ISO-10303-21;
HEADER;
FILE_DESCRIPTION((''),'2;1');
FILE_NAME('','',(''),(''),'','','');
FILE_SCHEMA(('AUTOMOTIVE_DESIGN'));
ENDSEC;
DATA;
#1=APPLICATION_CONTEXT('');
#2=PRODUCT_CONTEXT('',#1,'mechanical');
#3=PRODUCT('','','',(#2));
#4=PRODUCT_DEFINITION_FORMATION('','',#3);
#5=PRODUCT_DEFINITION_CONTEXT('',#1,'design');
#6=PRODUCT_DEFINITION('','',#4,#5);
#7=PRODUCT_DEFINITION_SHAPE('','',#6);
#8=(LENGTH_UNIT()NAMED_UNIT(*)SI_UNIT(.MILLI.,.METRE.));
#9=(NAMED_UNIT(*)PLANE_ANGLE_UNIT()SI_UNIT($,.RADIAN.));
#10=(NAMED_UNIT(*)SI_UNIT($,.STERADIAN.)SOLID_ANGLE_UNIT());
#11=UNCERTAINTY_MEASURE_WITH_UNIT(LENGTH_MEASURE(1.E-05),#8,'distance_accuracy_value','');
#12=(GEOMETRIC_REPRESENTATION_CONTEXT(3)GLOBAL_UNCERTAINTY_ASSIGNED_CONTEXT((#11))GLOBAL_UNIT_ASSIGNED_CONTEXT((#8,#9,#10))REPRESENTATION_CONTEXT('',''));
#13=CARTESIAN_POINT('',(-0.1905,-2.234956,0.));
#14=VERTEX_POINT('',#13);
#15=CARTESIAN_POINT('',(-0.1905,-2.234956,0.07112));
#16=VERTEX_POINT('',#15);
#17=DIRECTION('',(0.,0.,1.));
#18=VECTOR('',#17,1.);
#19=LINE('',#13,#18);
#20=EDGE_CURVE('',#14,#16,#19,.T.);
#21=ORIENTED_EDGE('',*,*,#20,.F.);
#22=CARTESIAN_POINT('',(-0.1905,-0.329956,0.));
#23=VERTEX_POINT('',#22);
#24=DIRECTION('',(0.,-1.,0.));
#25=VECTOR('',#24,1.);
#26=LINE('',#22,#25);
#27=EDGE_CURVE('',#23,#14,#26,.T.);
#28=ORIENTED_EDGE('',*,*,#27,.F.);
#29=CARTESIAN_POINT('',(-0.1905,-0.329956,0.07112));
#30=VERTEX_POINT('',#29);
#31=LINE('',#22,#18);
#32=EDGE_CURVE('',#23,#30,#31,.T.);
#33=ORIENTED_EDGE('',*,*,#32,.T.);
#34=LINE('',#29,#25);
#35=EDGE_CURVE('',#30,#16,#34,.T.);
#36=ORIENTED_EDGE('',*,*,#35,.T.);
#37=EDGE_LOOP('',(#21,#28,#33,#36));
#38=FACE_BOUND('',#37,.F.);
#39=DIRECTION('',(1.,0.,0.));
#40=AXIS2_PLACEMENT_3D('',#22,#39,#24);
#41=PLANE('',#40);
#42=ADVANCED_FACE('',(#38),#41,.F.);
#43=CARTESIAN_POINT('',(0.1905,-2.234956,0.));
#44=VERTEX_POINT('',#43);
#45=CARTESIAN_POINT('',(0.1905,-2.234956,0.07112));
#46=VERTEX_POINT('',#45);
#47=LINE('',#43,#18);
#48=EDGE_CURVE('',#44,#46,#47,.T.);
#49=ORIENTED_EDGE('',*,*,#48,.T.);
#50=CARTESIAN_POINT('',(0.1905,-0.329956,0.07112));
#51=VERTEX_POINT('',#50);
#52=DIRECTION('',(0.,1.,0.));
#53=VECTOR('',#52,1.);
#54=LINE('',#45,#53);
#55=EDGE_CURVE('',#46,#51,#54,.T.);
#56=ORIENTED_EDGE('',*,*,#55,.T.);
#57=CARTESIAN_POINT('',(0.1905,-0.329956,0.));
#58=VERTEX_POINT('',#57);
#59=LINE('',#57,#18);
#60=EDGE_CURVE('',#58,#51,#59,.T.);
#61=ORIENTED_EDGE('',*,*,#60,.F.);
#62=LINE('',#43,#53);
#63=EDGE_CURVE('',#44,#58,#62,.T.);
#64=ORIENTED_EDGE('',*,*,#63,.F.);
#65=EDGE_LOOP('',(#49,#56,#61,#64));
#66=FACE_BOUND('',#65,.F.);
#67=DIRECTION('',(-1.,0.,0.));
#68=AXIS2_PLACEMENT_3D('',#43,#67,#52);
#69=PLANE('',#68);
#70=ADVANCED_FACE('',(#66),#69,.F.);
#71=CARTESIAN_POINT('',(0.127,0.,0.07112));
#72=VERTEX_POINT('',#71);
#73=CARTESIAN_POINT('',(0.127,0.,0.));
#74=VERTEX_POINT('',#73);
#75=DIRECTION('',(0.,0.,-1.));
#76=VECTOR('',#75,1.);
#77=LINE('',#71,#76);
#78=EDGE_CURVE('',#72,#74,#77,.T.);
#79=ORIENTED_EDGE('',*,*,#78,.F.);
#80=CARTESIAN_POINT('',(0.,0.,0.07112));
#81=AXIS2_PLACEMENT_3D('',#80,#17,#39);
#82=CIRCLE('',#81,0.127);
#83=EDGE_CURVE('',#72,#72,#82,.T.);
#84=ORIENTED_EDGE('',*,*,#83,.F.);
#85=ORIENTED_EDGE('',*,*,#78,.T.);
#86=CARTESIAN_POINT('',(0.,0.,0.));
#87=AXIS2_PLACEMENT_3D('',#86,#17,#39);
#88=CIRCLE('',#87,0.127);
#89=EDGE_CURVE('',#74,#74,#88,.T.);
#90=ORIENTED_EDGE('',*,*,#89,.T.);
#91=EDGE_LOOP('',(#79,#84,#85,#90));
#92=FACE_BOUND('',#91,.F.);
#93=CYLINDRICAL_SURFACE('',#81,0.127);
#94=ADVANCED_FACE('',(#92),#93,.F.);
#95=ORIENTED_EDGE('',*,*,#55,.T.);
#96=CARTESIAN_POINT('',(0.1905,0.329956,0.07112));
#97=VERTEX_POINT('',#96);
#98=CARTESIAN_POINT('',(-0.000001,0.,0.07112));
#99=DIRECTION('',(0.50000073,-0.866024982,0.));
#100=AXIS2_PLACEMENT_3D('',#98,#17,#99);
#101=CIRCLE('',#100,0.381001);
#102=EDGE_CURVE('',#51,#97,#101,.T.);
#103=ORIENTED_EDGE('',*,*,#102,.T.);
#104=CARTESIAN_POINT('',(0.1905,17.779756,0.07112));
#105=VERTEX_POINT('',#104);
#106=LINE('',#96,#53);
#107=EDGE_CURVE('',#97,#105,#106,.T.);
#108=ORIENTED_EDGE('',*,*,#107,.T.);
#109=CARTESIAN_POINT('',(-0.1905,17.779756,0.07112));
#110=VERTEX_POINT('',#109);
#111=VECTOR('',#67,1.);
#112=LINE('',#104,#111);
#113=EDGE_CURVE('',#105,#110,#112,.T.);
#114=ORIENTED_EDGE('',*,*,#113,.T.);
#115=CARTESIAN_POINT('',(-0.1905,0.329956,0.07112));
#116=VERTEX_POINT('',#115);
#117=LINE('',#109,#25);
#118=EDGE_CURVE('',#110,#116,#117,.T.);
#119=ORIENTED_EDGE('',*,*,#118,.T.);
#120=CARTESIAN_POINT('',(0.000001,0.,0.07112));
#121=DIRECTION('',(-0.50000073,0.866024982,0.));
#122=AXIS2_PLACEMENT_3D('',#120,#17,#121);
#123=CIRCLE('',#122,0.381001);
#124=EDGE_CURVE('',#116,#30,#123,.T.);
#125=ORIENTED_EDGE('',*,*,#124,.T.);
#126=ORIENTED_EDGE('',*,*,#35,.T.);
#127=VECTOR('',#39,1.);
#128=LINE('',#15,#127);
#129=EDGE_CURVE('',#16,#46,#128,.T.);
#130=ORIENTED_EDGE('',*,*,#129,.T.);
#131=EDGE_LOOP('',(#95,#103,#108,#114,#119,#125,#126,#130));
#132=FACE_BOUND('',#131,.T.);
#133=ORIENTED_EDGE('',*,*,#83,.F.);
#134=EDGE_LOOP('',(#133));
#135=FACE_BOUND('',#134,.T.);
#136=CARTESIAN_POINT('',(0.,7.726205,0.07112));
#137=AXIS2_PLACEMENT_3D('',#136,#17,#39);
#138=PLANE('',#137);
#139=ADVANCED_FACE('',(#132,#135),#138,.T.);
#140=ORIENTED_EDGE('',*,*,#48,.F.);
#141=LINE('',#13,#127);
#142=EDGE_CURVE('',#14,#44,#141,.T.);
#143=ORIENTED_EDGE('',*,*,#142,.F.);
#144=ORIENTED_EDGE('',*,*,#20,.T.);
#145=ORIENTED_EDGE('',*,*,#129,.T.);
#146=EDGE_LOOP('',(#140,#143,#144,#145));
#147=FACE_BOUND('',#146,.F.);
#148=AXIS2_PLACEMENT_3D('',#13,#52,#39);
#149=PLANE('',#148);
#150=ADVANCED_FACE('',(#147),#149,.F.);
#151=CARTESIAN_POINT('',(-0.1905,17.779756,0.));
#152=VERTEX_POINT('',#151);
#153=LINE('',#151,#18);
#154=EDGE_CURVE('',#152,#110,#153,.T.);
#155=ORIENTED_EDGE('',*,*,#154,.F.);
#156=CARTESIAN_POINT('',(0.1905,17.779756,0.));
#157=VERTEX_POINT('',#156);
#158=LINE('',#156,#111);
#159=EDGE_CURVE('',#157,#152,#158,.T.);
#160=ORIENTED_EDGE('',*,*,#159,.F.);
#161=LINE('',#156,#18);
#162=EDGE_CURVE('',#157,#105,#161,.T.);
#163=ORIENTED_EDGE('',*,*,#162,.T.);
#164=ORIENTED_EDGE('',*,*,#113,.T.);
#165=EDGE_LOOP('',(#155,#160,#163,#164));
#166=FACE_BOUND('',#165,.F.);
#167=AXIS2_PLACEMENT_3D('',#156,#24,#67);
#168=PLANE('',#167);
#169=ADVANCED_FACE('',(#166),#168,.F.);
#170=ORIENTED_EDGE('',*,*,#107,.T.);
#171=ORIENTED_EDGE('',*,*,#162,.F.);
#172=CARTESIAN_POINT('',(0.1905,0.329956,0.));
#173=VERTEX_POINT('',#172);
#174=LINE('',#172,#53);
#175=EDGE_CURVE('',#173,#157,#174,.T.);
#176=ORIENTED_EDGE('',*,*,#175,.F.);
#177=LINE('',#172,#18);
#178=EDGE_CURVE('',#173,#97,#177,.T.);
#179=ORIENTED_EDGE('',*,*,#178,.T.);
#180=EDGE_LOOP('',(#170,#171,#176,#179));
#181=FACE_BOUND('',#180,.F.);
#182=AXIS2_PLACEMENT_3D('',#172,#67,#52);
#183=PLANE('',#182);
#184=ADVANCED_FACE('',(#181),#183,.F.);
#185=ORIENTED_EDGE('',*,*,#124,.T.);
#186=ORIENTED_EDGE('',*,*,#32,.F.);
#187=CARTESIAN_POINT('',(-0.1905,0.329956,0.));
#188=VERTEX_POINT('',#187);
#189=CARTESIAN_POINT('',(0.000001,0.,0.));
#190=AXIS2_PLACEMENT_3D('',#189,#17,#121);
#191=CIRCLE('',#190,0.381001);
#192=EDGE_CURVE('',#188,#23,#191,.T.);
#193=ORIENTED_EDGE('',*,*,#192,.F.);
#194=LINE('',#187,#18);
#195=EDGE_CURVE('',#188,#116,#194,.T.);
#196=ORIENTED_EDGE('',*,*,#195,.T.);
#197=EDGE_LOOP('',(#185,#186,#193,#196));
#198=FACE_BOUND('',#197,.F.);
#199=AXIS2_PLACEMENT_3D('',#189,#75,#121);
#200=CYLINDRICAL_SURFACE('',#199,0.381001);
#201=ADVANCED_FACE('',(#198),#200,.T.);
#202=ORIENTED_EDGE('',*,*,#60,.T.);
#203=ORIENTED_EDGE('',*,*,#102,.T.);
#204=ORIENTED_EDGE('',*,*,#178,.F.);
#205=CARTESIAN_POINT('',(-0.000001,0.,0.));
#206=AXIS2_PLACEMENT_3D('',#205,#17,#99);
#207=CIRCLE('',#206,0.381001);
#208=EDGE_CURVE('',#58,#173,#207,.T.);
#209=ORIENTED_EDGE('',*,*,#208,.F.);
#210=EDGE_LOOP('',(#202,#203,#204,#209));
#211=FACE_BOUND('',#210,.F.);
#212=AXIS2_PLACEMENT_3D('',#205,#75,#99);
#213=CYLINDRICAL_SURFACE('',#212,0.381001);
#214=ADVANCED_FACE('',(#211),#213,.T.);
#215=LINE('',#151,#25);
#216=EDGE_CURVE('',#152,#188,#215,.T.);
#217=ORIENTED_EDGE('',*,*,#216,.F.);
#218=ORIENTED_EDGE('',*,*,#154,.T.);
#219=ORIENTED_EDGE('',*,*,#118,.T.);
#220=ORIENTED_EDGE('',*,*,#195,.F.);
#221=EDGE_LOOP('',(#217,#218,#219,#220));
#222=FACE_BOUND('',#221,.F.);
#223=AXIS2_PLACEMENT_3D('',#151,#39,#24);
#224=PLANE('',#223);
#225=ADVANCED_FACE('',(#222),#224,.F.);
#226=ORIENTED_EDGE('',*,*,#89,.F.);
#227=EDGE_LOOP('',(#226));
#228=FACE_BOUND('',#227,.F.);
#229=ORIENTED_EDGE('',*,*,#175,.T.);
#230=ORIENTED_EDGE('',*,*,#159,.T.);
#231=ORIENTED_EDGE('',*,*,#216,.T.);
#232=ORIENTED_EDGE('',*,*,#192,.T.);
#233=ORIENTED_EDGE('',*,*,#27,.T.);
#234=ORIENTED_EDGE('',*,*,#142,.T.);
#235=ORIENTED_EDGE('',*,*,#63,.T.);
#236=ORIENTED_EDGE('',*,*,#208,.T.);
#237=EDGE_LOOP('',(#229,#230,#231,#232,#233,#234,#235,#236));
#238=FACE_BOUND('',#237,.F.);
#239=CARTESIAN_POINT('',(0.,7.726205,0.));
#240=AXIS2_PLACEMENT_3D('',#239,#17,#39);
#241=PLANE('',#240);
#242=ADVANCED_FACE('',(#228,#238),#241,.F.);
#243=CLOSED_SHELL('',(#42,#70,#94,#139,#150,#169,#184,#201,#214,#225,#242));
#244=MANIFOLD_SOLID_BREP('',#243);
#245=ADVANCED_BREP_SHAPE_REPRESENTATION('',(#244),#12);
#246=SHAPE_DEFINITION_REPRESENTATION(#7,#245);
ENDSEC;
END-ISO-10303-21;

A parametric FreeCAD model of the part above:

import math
import FreeCAD as App
import Part
import Sketcher
Q = App.Units.Quantity

doc = App.newDocument("Part")
params = doc.addObject("Spreadsheet::Sheet", "Params")
for row, (alias, value) in enumerate([
    ("sketch1_radius", "0.015 in"),
    ("sketch1_width", "0.015 in"),
    ("sketch1_height", "0.687 in"),
    ("sketch1_height2", "0.075 in"),
    ("pad1_length", "0.0028 in"),
    ("sketch2_diameter", "0.01 in"),
    ("pocket1_length", "1 in"),
], start=1):
    params.set(f"A{row}", alias)
    params.set(f"B{row}", "=" + value)
    params.setAlias(f"B{row}", alias)

body = doc.addObject("PartDesign::Body", "Body")

# Sketch on XY plane
sketch1 = body.newObject("Sketcher::SketchObject", "Sketch")
sketch1.AttachmentSupport = (doc.getObject("XY_Plane"), [""])
sketch1.MapMode = "FlatFace"
sketch1.addGeometry([
    Part.LineSegment(App.Vector(-0.19, 17.78, 0), App.Vector(-0.19, 0.33, 0)),  # 0
    Part.ArcOfCircle(Part.Circle(App.Vector(0, 0, 0), App.Vector(0, 0, 1), 0.38), math.radians(120), math.radians(240)),  # 1
    Part.LineSegment(App.Vector(-0.19, -0.33, 0), App.Vector(-0.19, -2.23, 0)),  # 2
    Part.LineSegment(App.Vector(-0.19, -2.23, 0), App.Vector(0.19, -2.23, 0)),  # 3
    Part.LineSegment(App.Vector(0.19, -2.23, 0), App.Vector(0.19, -0.33, 0)),  # 4
    Part.ArcOfCircle(Part.Circle(App.Vector(0, 0, 0), App.Vector(0, 0, 1), 0.38), math.radians(-60), math.radians(60)),  # 5
    Part.LineSegment(App.Vector(0.19, 0.33, 0), App.Vector(0.19, 17.78, 0)),  # 6
    Part.LineSegment(App.Vector(0.19, 17.78, 0), App.Vector(-0.19, 17.78, 0)),  # 7
], False)
sketch1.addConstraint([
    Sketcher.Constraint("Coincident", 0, 2, 1, 1),
    Sketcher.Constraint("Coincident", 1, 2, 2, 1),
    Sketcher.Constraint("Coincident", 2, 2, 3, 1),
    Sketcher.Constraint("Coincident", 3, 2, 4, 1),
    Sketcher.Constraint("Coincident", 4, 2, 5, 1),
    Sketcher.Constraint("Coincident", 5, 2, 6, 1),
    Sketcher.Constraint("Coincident", 6, 2, 7, 1),
    Sketcher.Constraint("Coincident", 7, 2, 0, 1),
    Sketcher.Constraint("Vertical", 0),
    Sketcher.Constraint("Vertical", 2),
    Sketcher.Constraint("Horizontal", 3),
    Sketcher.Constraint("Vertical", 4),
    Sketcher.Constraint("Vertical", 6),
    Sketcher.Constraint("Horizontal", 7),
    Sketcher.Constraint("Coincident", 1, 3, -1, 1),
    Sketcher.Constraint("Coincident", 5, 3, -1, 1),
    Sketcher.Constraint("Equal", 1, 5),
    Sketcher.Constraint("Horizontal", 1, 2, 4, 2),
    Sketcher.Constraint("Horizontal", 0, 2, 5, 2),
    Sketcher.Constraint("Vertical", 0, 2, 1, 2),
    Sketcher.Constraint("Radius", 1, Q("0.015 in")),
    Sketcher.Constraint("DistanceX", 3, 1, 3, 2, Q("0.015 in")),
    Sketcher.Constraint("DistanceY", 0, 2, 0, 1, Q("0.687 in")),
    Sketcher.Constraint("DistanceY", 2, 2, 2, 1, Q("0.075 in")),
])
sketch1.setExpression("Constraints[20]", "Params.sketch1_radius")
sketch1.setExpression("Constraints[21]", "Params.sketch1_width")
sketch1.setExpression("Constraints[22]", "Params.sketch1_height")
sketch1.setExpression("Constraints[23]", "Params.sketch1_height2")
pad1 = body.newObject("PartDesign::Pad", "Pad")
pad1.Profile = sketch1
pad1.setExpression("Length", "Params.pad1_length")

# Sketch on XY plane
sketch2 = body.newObject("Sketcher::SketchObject", "Sketch001")
sketch2.AttachmentSupport = (doc.getObject("XY_Plane"), [""])
sketch2.MapMode = "FlatFace"
sketch2.AttachmentOffset = App.Placement(App.Vector(0, 0, 0.0028 * 25.4), App.Rotation())
sketch2.addGeometry(Part.Circle(App.Vector(0, 0, 0), App.Vector(0, 0, 1), 0.13), False)
sketch2.addConstraint([
    Sketcher.Constraint("Coincident", 0, 3, -1, 1),
    Sketcher.Constraint("Diameter", 0, Q("0.01 in")),
])
sketch2.setExpression("Constraints[1]", "Params.sketch2_diameter")
pocket1 = body.newObject("PartDesign::Pocket", "Pocket")
pocket1.Profile = sketch2
pocket1.setExpression("Length", "Params.pocket1_length")

doc.recompute()
